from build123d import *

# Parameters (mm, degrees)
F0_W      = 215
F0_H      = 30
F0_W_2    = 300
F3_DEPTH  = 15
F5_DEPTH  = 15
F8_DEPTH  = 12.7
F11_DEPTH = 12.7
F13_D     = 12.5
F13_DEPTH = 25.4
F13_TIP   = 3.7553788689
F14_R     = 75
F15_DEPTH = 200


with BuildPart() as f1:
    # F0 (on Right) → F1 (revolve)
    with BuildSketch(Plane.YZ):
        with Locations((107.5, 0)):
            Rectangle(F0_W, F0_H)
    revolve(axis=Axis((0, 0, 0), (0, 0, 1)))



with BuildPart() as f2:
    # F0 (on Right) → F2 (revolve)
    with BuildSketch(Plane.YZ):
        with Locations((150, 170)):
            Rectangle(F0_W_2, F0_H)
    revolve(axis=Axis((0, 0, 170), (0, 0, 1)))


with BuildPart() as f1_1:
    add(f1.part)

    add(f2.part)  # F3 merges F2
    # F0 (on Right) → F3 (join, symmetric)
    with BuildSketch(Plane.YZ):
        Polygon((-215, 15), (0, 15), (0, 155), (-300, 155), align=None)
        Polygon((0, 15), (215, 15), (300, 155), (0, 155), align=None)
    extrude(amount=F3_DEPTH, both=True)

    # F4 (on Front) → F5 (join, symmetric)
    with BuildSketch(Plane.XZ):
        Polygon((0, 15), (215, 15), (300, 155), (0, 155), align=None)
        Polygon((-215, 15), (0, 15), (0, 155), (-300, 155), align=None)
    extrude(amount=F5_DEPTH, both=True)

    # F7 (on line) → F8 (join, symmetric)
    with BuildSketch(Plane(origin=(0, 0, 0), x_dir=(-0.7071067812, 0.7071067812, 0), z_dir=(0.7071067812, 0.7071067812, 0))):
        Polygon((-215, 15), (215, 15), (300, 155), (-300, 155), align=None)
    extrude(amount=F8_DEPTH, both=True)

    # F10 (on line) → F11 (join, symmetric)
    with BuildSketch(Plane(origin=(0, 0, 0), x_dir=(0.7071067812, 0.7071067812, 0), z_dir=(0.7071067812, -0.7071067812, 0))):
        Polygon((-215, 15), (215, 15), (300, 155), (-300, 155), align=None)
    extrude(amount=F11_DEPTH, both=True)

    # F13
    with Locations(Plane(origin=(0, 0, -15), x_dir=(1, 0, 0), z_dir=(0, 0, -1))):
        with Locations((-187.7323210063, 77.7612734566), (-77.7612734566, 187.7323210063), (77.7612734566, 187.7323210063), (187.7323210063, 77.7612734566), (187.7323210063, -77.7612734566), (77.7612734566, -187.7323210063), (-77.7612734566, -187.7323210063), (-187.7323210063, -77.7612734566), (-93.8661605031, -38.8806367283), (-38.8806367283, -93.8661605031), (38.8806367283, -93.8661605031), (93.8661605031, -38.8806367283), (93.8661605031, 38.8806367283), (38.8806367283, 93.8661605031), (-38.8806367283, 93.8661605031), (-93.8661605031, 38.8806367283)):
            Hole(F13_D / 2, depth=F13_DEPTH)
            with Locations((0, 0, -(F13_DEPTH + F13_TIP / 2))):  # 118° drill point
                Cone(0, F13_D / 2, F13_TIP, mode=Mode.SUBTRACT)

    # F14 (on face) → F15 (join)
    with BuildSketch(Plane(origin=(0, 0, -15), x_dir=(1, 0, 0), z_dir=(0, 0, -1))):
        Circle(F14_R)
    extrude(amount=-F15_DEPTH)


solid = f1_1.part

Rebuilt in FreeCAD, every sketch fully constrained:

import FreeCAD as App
import Part
import Sketcher
Q = App.Units.Quantity

doc = App.newDocument("Part")
params = doc.addObject("Spreadsheet::Sheet", "Params")
for row, (alias, value) in enumerate([
    ("sketch1_width", "215 mm"),
    ("sketch1_height", "30 mm"),
    ("revolution_angle", "360 deg"),
    ("sketch2_width", "300 mm"),
    ("sketch2_height", "30 mm"),
    ("revolution2_angle", "360 deg"),
    ("sketch3_width", "430 mm"),
    ("sketch3_width2", "600 mm"),
    ("pad1_length", "30 mm"),
    ("sketch4_width", "600 mm"),
    ("sketch4_width2", "430 mm"),
    ("pad2_length", "30 mm"),
    ("sketch5_width", "430 mm"),
    ("sketch5_width2", "600 mm"),
    ("pad3_length", "25.4 mm"),
    ("sketch6_width", "430 mm"),
    ("sketch6_width2", "600 mm"),
    ("pad4_length", "25.4 mm"),
    ("sketch7_diameter", "12.5 mm"),
    ("hole_diameter", "12.5 mm"),
    ("hole_depth", "25.4 mm"),
    ("sketch8_diameter", "150 mm"),
    ("pad5_length", "200 mm"),
], start=1):
    params.set(f"A{row}", alias)
    params.set(f"B{row}", "=" + value)
    params.setAlias(f"B{row}", alias)

body = doc.addObject("PartDesign::Body", "Body")

sketch1 = body.newObject("Sketcher::SketchObject", "Sketch")
sketch1.AttachmentSupport = (doc.getObject("YZ_Plane"), [""])
sketch1.MapMode = "FlatFace"
sketch1.addGeometry(Part.LineSegment(App.Vector(0, 15, 0), App.Vector(0, -15, 0)), False)
sketch1.addGeometry(Part.LineSegment(App.Vector(0, -15, 0), App.Vector(215, -15, 0)), False)
sketch1.addGeometry(Part.LineSegment(App.Vector(215, -15, 0), App.Vector(215, 15, 0)), False)
sketch1.addGeometry(Part.LineSegment(App.Vector(215, 15, 0), App.Vector(0, 15, 0)), False)
sketch1.addConstraint(Sketcher.Constraint("Coincident", 0, 2, 1, 1))
sketch1.addConstraint(Sketcher.Constraint("Coincident", 1, 2, 2, 1))
sketch1.addConstraint(Sketcher.Constraint("Coincident", 2, 2, 3, 1))
sketch1.addConstraint(Sketcher.Constraint("Coincident", 3, 2, 0, 1))
sketch1.addConstraint(Sketcher.Constraint("Vertical", 0))
sketch1.addConstraint(Sketcher.Constraint("Horizontal", 1))
sketch1.addConstraint(Sketcher.Constraint("Vertical", 2))
sketch1.addConstraint(Sketcher.Constraint("Horizontal", 3))
sketch1.addConstraint(Sketcher.Constraint("Symmetric", 0, 2, 3, 2, -1, 1))
sketch1.addConstraint(Sketcher.Constraint("DistanceX", 1, 1, 1, 2, Q("215 mm")))
sketch1.addConstraint(Sketcher.Constraint("DistanceY", 0, 2, 0, 1, Q("30 mm")))
sketch1.setExpression("Constraints[9]", "Params.sketch1_width")
sketch1.setExpression("Constraints[10]", "Params.sketch1_height")
revolution = body.newObject("PartDesign::Revolution", "Revolution")
revolution.Profile = sketch1
revolution.ReferenceAxis = (sketch1, ["V_Axis"])
revolution.setExpression("Angle", "Params.revolution_angle")
body2 = doc.addObject("PartDesign::Body", "Body001")

sketch2 = body2.newObject("Sketcher::SketchObject", "Sketch001")
sketch2.AttachmentSupport = (doc.getObject("YZ_Plane001"), [""])
sketch2.MapMode = "FlatFace"
sketch2.addGeometry(Part.LineSegment(App.Vector(0, 185, 0), App.Vector(0, 155, 0)), False)
sketch2.addGeometry(Part.LineSegment(App.Vector(0, 155, 0), App.Vector(300, 155, 0)), False)
sketch2.addGeometry(Part.LineSegment(App.Vector(300, 155, 0), App.Vector(300, 185, 0)), False)
sketch2.addGeometry(Part.LineSegment(App.Vector(300, 185, 0), App.Vector(0, 185, 0)), False)
sketch2.addConstraint(Sketcher.Constraint("Coincident", 0, 2, 1, 1))
sketch2.addConstraint(Sketcher.Constraint("Coincident", 1, 2, 2, 1))
sketch2.addConstraint(Sketcher.Constraint("Coincident", 2, 2, 3, 1))
sketch2.addConstraint(Sketcher.Constraint("Coincident", 3, 2, 0, 1))
sketch2.addConstraint(Sketcher.Constraint("Vertical", 0))
sketch2.addConstraint(Sketcher.Constraint("Horizontal", 1))
sketch2.addConstraint(Sketcher.Constraint("Vertical", 2))
sketch2.addConstraint(Sketcher.Constraint("Horizontal", 3))
sketch2.addConstraint(Sketcher.Constraint("PointOnObject", 0, 2, -2))
sketch2.addConstraint(Sketcher.Constraint("DistanceX", 1, 1, 1, 2, Q("300 mm")))
sketch2.addConstraint(Sketcher.Constraint("DistanceY", 0, 2, 0, 1, Q("30 mm")))
sketch2.addConstraint(Sketcher.Constraint("DistanceY", -1, 1, 0, 2, Q("155 mm")))
sketch2.setExpression("Constraints[9]", "Params.sketch2_width")
sketch2.setExpression("Constraints[10]", "Params.sketch2_height")
revolution2 = body2.newObject("PartDesign::Revolution", "Revolution001")
revolution2.Profile = sketch2
revolution2.ReferenceAxis = (sketch2, ["V_Axis"])
revolution2.setExpression("Angle", "Params.revolution2_angle")
body.AllowCompound = True
doc.recompute()

boolean = body.newObject("PartDesign::Boolean", "Boolean")
boolean.Type = "Fuse"
boolean.addObjects([body2])

sketch3 = body.newObject("Sketcher::SketchObject", "Sketch002")
sketch3.AttachmentSupport = (doc.getObject("YZ_Plane"), [""])
sketch3.MapMode = "FlatFace"
sketch3.addGeometry(Part.LineSegment(App.Vector(-215, 15, 0), App.Vector(215, 15, 0)), False)
sketch3.addGeometry(Part.LineSegment(App.Vector(215, 15, 0), App.Vector(300, 155, 0)), False)
sketch3.addGeometry(Part.LineSegment(App.Vector(300, 155, 0), App.Vector(-300, 155, 0)), False)
sketch3.addGeometry(Part.LineSegment(App.Vector(-300, 155, 0), App.Vector(-215, 15, 0)), False)
sketch3.addConstraint(Sketcher.Constraint("Coincident", 0, 2, 1, 1))
sketch3.addConstraint(Sketcher.Constraint("Coincident", 1, 2, 2, 1))
sketch3.addConstraint(Sketcher.Constraint("Coincident", 2, 2, 3, 1))
sketch3.addConstraint(Sketcher.Constraint("Coincident", 3, 2, 0, 1))
sketch3.addConstraint(Sketcher.Constraint("Horizontal", 0))
sketch3.addConstraint(Sketcher.Constraint("Horizontal", 2))
sketch3.addConstraint(Sketcher.Constraint("Equal", 1, 3))
sketch3.addConstraint(Sketcher.Constraint("DistanceX", 0, 1, 0, 2, Q("430 mm")))
sketch3.addConstraint(Sketcher.Constraint("DistanceX", 2, 2, 2, 1, Q("600 mm")))
sketch3.addConstraint(Sketcher.Constraint("DistanceX", -1, 1, 0, 2, Q("215 mm")))
sketch3.addConstraint(Sketcher.Constraint("DistanceY", -1, 1, 0, 2, Q("15 mm")))
sketch3.addConstraint(Sketcher.Constraint("DistanceY", -1, 1, 1, 2, Q("155 mm")))
sketch3.setExpression("Constraints[7]", "Params.sketch3_width")
sketch3.setExpression("Constraints[8]", "Params.sketch3_width2")
pad1 = body.newObject("PartDesign::Pad", "Pad")
pad1.Profile = sketch3
pad1.setExpression("Length", "Params.pad1_length")
pad1.Midplane = True

sketch4 = body.newObject("Sketcher::SketchObject", "Sketch003")
sketch4.AttachmentSupport = (doc.getObject("XZ_Plane"), [""])
sketch4.MapMode = "FlatFace"
sketch4.addGeometry(Part.LineSegment(App.Vector(215, 15, 0), App.Vector(300, 155, 0)), False)
sketch4.addGeometry(Part.LineSegment(App.Vector(300, 155, 0), App.Vector(-300, 155, 0)), False)
sketch4.addGeometry(Part.LineSegment(App.Vector(-300, 155, 0), App.Vector(-215, 15, 0)), False)
sketch4.addGeometry(Part.LineSegment(App.Vector(-215, 15, 0), App.Vector(215, 15, 0)), False)
sketch4.addConstraint(Sketcher.Constraint("Coincident", 0, 2, 1, 1))
sketch4.addConstraint(Sketcher.Constraint("Coincident", 1, 2, 2, 1))
sketch4.addConstraint(Sketcher.Constraint("Coincident", 2, 2, 3, 1))
sketch4.addConstraint(Sketcher.Constraint("Coincident", 3, 2, 0, 1))
sketch4.addConstraint(Sketcher.Constraint("Horizontal", 1))
sketch4.addConstraint(Sketcher.Constraint("Horizontal", 3))
sketch4.addConstraint(Sketcher.Constraint("Equal", 0, 2))
sketch4.addConstraint(Sketcher.Constraint("DistanceX", 1, 2, 1, 1, Q("600 mm")))
sketch4.addConstraint(Sketcher.Constraint("DistanceX", 3, 1, 3, 2, Q("430 mm")))
sketch4.addConstraint(Sketcher.Constraint("DistanceX", -1, 1, 0, 2, Q("300 mm")))
sketch4.addConstraint(Sketcher.Constraint("DistanceY", -1, 1, 0, 2, Q("155 mm")))
sketch4.addConstraint(Sketcher.Constraint("DistanceY", -1, 1, 2, 2, Q("15 mm")))
sketch4.setExpression("Constraints[7]", "Params.sketch4_width")
sketch4.setExpression("Constraints[8]", "Params.sketch4_width2")
pad2 = body.newObject("PartDesign::Pad", "Pad001")
pad2.Profile = sketch4
pad2.setExpression("Length", "Params.pad2_length")
pad2.Midplane = True

sketch5 = body.newObject("Sketcher::SketchObject", "Sketch004")
sketch5.Placement = App.Placement(App.Vector(0, 0, 0), App.Rotation(App.Vector(-0.707106781, 0.707106781, 0), App.Vector(0, 0, 0.999999999), App.Vector(0.707106781, 0.707106781, 0), "ZXY"))
sketch5.addGeometry(Part.LineSegment(App.Vector(-215, 15, 0), App.Vector(215, 15, 0)), False)
sketch5.addGeometry(Part.LineSegment(App.Vector(215, 15, 0), App.Vector(300, 155, 0)), False)
sketch5.addGeometry(Part.LineSegment(App.Vector(300, 155, 0), App.Vector(-300, 155, 0)), False)
sketch5.addGeometry(Part.LineSegment(App.Vector(-300, 155, 0), App.Vector(-215, 15, 0)), False)
sketch5.addConstraint(Sketcher.Constraint("Coincident", 0, 2, 1, 1))
sketch5.addConstraint(Sketcher.Constraint("Coincident", 1, 2, 2, 1))
sketch5.addConstraint(Sketcher.Constraint("Coincident", 2, 2, 3, 1))
sketch5.addConstraint(Sketcher.Constraint("Coincident", 3, 2, 0, 1))
sketch5.addConstraint(Sketcher.Constraint("Horizontal", 0))
sketch5.addConstraint(Sketcher.Constraint("Horizontal", 2))
sketch5.addConstraint(Sketcher.Constraint("Equal", 1, 3))
sketch5.addConstraint(Sketcher.Constraint("DistanceX", 0, 1, 0, 2, Q("430 mm")))
sketch5.addConstraint(Sketcher.Constraint("DistanceX", 2, 2, 2, 1, Q("600 mm")))
sketch5.addConstraint(Sketcher.Constraint("DistanceX", -1, 1, 0, 2, Q("215 mm")))
sketch5.addConstraint(Sketcher.Constraint("DistanceY", -1, 1, 0, 2, Q("15 mm")))
sketch5.addConstraint(Sketcher.Constraint("DistanceY", -1, 1, 1, 2, Q("155 mm")))
sketch5.setExpression("Constraints[7]", "Params.sketch5_width")
sketch5.setExpression("Constraints[8]", "Params.sketch5_width2")
pad3 = body.newObject("PartDesign::Pad", "Pad002")
pad3.Profile = sketch5
pad3.setExpression("Length", "Params.pad3_length")
pad3.Midplane = True

sketch6 = body.newObject("Sketcher::SketchObject", "Sketch005")
sketch6.Placement = App.Placement(App.Vector(0, 0, 0), App.Rotation(App.Vector(0.707106781, 0.707106781, 0), App.Vector(0, 0, 0.999999999), App.Vector(0.707106781, -0.707106781, 0), "ZXY"))
sketch6.addGeometry(Part.LineSegment(App.Vector(-215, 15, 0), App.Vector(215, 15, 0)), False)
sketch6.addGeometry(Part.LineSegment(App.Vector(215, 15, 0), App.Vector(300, 155, 0)), False)
sketch6.addGeometry(Part.LineSegment(App.Vector(300, 155, 0), App.Vector(-300, 155, 0)), False)
sketch6.addGeometry(Part.LineSegment(App.Vector(-300, 155, 0), App.Vector(-215, 15, 0)), False)
sketch6.addConstraint(Sketcher.Constraint("Coincident", 0, 2, 1, 1))
sketch6.addConstraint(Sketcher.Constraint("Coincident", 1, 2, 2, 1))
sketch6.addConstraint(Sketcher.Constraint("Coincident", 2, 2, 3, 1))
sketch6.addConstraint(Sketcher.Constraint("Coincident", 3, 2, 0, 1))
sketch6.addConstraint(Sketcher.Constraint("Horizontal", 0))
sketch6.addConstraint(Sketcher.Constraint("Horizontal", 2))
sketch6.addConstraint(Sketcher.Constraint("Equal", 1, 3))
sketch6.addConstraint(Sketcher.Constraint("DistanceX", 0, 1, 0, 2, Q("430 mm")))
sketch6.addConstraint(Sketcher.Constraint("DistanceX", 2, 2, 2, 1, Q("600 mm")))
sketch6.addConstraint(Sketcher.Constraint("DistanceX", -1, 1, 0, 2, Q("215 mm")))
sketch6.addConstraint(Sketcher.Constraint("DistanceY", -1, 1, 0, 2, Q("15 mm")))
sketch6.addConstraint(Sketcher.Constraint("DistanceY", -1, 1, 1, 2, Q("155 mm")))
sketch6.setExpression("Constraints[7]", "Params.sketch6_width")
sketch6.setExpression("Constraints[8]", "Params.sketch6_width2")
pad4 = body.newObject("PartDesign::Pad", "Pad003")
pad4.Profile = sketch6
pad4.setExpression("Length", "Params.pad4_length")
pad4.Midplane = True

sketch7 = body.newObject("Sketcher::SketchObject", "Sketch006")
sketch7.AttachmentSupport = (doc.getObject("XY_Plane"), [""])
sketch7.MapMode = "FlatFace"
sketch7.AttachmentOffset = App.Placement(App.Vector(0, 0, -15), App.Rotation())
sketch7.addGeometry(Part.Circle(App.Vector(-188, -78, 0), App.Vector(0, 0, 1), 6), False)
sketch7.addGeometry(Part.Circle(App.Vector(-78, -188, 0), App.Vector(0, 0, 1), 6), False)
sketch7.addGeometry(Part.Circle(App.Vector(78, -188, 0), App.Vector(0, 0, 1), 6), False)
sketch7.addGeometry(Part.Circle(App.Vector(188, -78, 0), App.Vector(0, 0, 1), 6), False)
sketch7.addGeometry(Part.Circle(App.Vector(188, 78, 0), App.Vector(0, 0, 1), 6), False)
sketch7.addGeometry(Part.Circle(App.Vector(78, 188, 0), App.Vector(0, 0, 1), 6), False)
sketch7.addGeometry(Part.Circle(App.Vector(-78, 188, 0), App.Vector(0, 0, 1), 6), False)
sketch7.addGeometry(Part.Circle(App.Vector(-188, 78, 0), App.Vector(0, 0, 1), 6), False)
sketch7.addGeometry(Part.Circle(App.Vector(-94, 39, 0), App.Vector(0, 0, 1), 6), False)
sketch7.addGeometry(Part.Circle(App.Vector(-39, 94, 0), App.Vector(0, 0, 1), 6), False)
sketch7.addGeometry(Part.Circle(App.Vector(39, 94, 0), App.Vector(0, 0, 1), 6), False)
sketch7.addGeometry(Part.Circle(App.Vector(94, 39, 0), App.Vector(0, 0, 1), 6), False)
sketch7.addGeometry(Part.Circle(App.Vector(94, -39, 0), App.Vector(0, 0, 1), 6), False)
sketch7.addGeometry(Part.Circle(App.Vector(39, -94, 0), App.Vector(0, 0, 1), 6), False)
sketch7.addGeometry(Part.Circle(App.Vector(-39, -94, 0), App.Vector(0, 0, 1), 6), False)
sketch7.addGeometry(Part.Circle(App.Vector(-94, -39, 0), App.Vector(0, 0, 1), 6), False)
sketch7.addConstraint(Sketcher.Constraint("Equal", 0, 1))
sketch7.addConstraint(Sketcher.Constraint("Equal", 1, 2))
sketch7.addConstraint(Sketcher.Constraint("Equal", 2, 3))
sketch7.addConstraint(Sketcher.Constraint("Equal", 3, 4))
sketch7.addConstraint(Sketcher.Constraint("Equal", 4, 5))
sketch7.addConstraint(Sketcher.Constraint("Equal", 5, 6))
sketch7.addConstraint(Sketcher.Constraint("Equal", 6, 7))
sketch7.addConstraint(Sketcher.Constraint("Equal", 7, 8))
sketch7.addConstraint(Sketcher.Constraint("Equal", 8, 9))
sketch7.addConstraint(Sketcher.Constraint("Equal", 9, 10))
sketch7.addConstraint(Sketcher.Constraint("Equal", 10, 11))
sketch7.addConstraint(Sketcher.Constraint("Equal", 11, 12))
sketch7.addConstraint(Sketcher.Constraint("Equal", 12, 13))
sketch7.addConstraint(Sketcher.Constraint("Equal", 13, 14))
sketch7.addConstraint(Sketcher.Constraint("Equal", 14, 15))
sketch7.addConstraint(Sketcher.Constraint("Symmetric", 0, 3, 4, 3, -1, 1))
sketch7.addConstraint(Sketcher.Constraint("Symmetric", 1, 3, 5, 3, -1, 1))
sketch7.addConstraint(Sketcher.Constraint("Symmetric", 2, 3, 6, 3, -1, 1))
sketch7.addConstraint(Sketcher.Constraint("Symmetric", 3, 3, 7, 3, -1, 1))
sketch7.addConstraint(Sketcher.Constraint("Symmetric", 8, 3, 12, 3, -1, 1))
sketch7.addConstraint(Sketcher.Constraint("Symmetric", 9, 3, 13, 3, -1, 1))
sketch7.addConstraint(Sketcher.Constraint("Symmetric", 10, 3, 14, 3, -1, 1))
sketch7.addConstraint(Sketcher.Constraint("Symmetric", 11, 3, 15, 3, -1, 1))
sketch7.addConstraint(Sketcher.Constraint("Symmetric", 1, 3, 2, 3, -2))
sketch7.addConstraint(Sketcher.Constraint("Symmetric", 0, 3, 3, 3, -2))
sketch7.addConstraint(Sketcher.Constraint("Symmetric", 9, 3, 10, 3, -2))
sketch7.addConstraint(Sketcher.Constraint("Symmetric", 8, 3, 11, 3, -2))
sketch7.addConstraint(Sketcher.Constraint("Diameter", 0, Q("12.5 mm")))
sketch7.addConstraint(Sketcher.Constraint("DistanceX", 0, 3, -1, 1, Q("187.732321 mm")))
sketch7.addConstraint(Sketcher.Constraint("DistanceY", 1, 3, -1, 1, Q("187.732321 mm")))
sketch7.addConstraint(Sketcher.Constraint("DistanceX", 8, 3, -1, 1, Q("93.866161 mm")))
sketch7.addConstraint(Sketcher.Constraint("DistanceY", -1, 1, 9, 3, Q("93.866161 mm")))
sketch7.addConstraint(Sketcher.Constraint("DistanceY", 0, 3, 8, 3, Q("116.64191 mm")))
sketch7.addConstraint(Sketcher.Constraint("DistanceX", 9, 3, 5, 3, Q("116.64191 mm")))
sketch7.addConstraint(Sketcher.Constraint("DistanceY", 0, 3, -1, 1, Q("77.761273 mm")))
sketch7.addConstraint(Sketcher.Constraint("DistanceX", 1, 3, -1, 1, Q("77.761273 mm")))
sketch7.setExpression("Constraints[27]", "Params.sketch7_diameter")
doc.recompute()
hole = body.newObject("PartDesign::Hole", "Hole")
hole.Profile = sketch7
hole.ThreadType = "None"
hole.setExpression("Diameter", "Params.hole_diameter")
hole.DepthType = "Dimension"
hole.setExpression("Depth", "Params.hole_depth")
hole.DrillPoint = "Angled"
hole.DrillPointAngle = 118
hole.Reversed = True

sketch8 = body.newObject("Sketcher::SketchObject", "Sketch007")
sketch8.AttachmentSupport = (doc.getObject("XY_Plane"), [""])
sketch8.MapMode = "FlatFace"
sketch8.AttachmentOffset = App.Placement(App.Vector(0, 0, -15), App.Rotation())
sketch8.addGeometry(Part.Circle(App.Vector(0, 0, 0), App.Vector(0, 0, 1), 75), False)
sketch8.addConstraint(Sketcher.Constraint("Coincident", 0, 3, -1, 1))
sketch8.addConstraint(Sketcher.Constraint("Diameter", 0, Q("150 mm")))
sketch8.setExpression("Constraints[1]", "Params.sketch8_diameter")
pad5 = body.newObject("PartDesign::Pad", "Pad004")
pad5.Profile = sketch8
pad5.setExpression("Length", "Params.pad5_length")

doc.recompute()
